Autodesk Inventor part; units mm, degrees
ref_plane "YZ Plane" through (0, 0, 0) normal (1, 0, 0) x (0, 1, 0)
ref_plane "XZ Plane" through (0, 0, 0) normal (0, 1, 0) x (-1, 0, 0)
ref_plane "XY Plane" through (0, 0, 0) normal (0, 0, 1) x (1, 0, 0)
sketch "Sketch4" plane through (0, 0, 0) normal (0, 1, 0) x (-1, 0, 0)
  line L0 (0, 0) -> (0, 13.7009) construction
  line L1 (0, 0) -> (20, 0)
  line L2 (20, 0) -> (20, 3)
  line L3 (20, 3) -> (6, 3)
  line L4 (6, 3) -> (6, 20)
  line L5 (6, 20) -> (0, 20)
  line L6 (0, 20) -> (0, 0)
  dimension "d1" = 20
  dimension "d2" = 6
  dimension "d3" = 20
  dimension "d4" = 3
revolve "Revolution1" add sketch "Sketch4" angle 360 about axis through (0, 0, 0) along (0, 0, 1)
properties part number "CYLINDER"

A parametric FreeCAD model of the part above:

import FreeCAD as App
import Part
import Sketcher
from FreeCAD import Vector
Q = App.Units.Quantity


def add_polygon(sketch, points):
    """Adds a closed chain of lines whose ends are joined by coincident constraints."""
    first, n = sketch.GeometryCount, len(points)
    for a, b in zip(points, points[1:] + points[:1]):
        sketch.addGeometry(Part.LineSegment(App.Vector(*a, 0), App.Vector(*b, 0)), False)
    for i in range(n):
        sketch.addConstraint(Sketcher.Constraint("Coincident", first + i, 2, first + (i + 1) % n, 1))

doc = App.newDocument("Part")
body = doc.addObject("PartDesign::Body", "Body")

# Sketch on XZ plane
sketch1 = doc.addObject("Sketcher::SketchObject", "Sketch")
body.addObject(sketch1)
sketch1.AttachmentSupport = (doc.XZ_Plane, [""])
sketch1.MapMode = "FlatFace"
add_polygon(sketch1, [(0, 20), (0, 0), (-20, 0), (-20, 3), (-6, 3), (-6, 20)])  # lines 0-5
sketch1.addConstraint([
    Sketcher.Constraint("Vertical", 0),
    Sketcher.Constraint("Horizontal", 1),
    Sketcher.Constraint("Vertical", 2),
    Sketcher.Constraint("Horizontal", 3),
    Sketcher.Constraint("Vertical", 4),
    Sketcher.Constraint("Horizontal", 5),
    Sketcher.Constraint("Coincident", 0, 2, -1, 1),
    Sketcher.Constraint("Equal", 1, 0),
    Sketcher.Constraint("DistanceX", 1, 2, 1, 1, Q("20 mm")),
    Sketcher.Constraint("DistanceX", 5, 1, 5, 2, Q("6 mm")),
    Sketcher.Constraint("DistanceY", 2, 1, 2, 2, Q("3 mm")),
])
revolution = doc.addObject("PartDesign::Revolution", "Revolution")
body.addObject(revolution)
revolution.Profile = sketch1
revolution.ReferenceAxis = (sketch1, ["V_Axis"])
revolution.Angle = 360

doc.recompute()
